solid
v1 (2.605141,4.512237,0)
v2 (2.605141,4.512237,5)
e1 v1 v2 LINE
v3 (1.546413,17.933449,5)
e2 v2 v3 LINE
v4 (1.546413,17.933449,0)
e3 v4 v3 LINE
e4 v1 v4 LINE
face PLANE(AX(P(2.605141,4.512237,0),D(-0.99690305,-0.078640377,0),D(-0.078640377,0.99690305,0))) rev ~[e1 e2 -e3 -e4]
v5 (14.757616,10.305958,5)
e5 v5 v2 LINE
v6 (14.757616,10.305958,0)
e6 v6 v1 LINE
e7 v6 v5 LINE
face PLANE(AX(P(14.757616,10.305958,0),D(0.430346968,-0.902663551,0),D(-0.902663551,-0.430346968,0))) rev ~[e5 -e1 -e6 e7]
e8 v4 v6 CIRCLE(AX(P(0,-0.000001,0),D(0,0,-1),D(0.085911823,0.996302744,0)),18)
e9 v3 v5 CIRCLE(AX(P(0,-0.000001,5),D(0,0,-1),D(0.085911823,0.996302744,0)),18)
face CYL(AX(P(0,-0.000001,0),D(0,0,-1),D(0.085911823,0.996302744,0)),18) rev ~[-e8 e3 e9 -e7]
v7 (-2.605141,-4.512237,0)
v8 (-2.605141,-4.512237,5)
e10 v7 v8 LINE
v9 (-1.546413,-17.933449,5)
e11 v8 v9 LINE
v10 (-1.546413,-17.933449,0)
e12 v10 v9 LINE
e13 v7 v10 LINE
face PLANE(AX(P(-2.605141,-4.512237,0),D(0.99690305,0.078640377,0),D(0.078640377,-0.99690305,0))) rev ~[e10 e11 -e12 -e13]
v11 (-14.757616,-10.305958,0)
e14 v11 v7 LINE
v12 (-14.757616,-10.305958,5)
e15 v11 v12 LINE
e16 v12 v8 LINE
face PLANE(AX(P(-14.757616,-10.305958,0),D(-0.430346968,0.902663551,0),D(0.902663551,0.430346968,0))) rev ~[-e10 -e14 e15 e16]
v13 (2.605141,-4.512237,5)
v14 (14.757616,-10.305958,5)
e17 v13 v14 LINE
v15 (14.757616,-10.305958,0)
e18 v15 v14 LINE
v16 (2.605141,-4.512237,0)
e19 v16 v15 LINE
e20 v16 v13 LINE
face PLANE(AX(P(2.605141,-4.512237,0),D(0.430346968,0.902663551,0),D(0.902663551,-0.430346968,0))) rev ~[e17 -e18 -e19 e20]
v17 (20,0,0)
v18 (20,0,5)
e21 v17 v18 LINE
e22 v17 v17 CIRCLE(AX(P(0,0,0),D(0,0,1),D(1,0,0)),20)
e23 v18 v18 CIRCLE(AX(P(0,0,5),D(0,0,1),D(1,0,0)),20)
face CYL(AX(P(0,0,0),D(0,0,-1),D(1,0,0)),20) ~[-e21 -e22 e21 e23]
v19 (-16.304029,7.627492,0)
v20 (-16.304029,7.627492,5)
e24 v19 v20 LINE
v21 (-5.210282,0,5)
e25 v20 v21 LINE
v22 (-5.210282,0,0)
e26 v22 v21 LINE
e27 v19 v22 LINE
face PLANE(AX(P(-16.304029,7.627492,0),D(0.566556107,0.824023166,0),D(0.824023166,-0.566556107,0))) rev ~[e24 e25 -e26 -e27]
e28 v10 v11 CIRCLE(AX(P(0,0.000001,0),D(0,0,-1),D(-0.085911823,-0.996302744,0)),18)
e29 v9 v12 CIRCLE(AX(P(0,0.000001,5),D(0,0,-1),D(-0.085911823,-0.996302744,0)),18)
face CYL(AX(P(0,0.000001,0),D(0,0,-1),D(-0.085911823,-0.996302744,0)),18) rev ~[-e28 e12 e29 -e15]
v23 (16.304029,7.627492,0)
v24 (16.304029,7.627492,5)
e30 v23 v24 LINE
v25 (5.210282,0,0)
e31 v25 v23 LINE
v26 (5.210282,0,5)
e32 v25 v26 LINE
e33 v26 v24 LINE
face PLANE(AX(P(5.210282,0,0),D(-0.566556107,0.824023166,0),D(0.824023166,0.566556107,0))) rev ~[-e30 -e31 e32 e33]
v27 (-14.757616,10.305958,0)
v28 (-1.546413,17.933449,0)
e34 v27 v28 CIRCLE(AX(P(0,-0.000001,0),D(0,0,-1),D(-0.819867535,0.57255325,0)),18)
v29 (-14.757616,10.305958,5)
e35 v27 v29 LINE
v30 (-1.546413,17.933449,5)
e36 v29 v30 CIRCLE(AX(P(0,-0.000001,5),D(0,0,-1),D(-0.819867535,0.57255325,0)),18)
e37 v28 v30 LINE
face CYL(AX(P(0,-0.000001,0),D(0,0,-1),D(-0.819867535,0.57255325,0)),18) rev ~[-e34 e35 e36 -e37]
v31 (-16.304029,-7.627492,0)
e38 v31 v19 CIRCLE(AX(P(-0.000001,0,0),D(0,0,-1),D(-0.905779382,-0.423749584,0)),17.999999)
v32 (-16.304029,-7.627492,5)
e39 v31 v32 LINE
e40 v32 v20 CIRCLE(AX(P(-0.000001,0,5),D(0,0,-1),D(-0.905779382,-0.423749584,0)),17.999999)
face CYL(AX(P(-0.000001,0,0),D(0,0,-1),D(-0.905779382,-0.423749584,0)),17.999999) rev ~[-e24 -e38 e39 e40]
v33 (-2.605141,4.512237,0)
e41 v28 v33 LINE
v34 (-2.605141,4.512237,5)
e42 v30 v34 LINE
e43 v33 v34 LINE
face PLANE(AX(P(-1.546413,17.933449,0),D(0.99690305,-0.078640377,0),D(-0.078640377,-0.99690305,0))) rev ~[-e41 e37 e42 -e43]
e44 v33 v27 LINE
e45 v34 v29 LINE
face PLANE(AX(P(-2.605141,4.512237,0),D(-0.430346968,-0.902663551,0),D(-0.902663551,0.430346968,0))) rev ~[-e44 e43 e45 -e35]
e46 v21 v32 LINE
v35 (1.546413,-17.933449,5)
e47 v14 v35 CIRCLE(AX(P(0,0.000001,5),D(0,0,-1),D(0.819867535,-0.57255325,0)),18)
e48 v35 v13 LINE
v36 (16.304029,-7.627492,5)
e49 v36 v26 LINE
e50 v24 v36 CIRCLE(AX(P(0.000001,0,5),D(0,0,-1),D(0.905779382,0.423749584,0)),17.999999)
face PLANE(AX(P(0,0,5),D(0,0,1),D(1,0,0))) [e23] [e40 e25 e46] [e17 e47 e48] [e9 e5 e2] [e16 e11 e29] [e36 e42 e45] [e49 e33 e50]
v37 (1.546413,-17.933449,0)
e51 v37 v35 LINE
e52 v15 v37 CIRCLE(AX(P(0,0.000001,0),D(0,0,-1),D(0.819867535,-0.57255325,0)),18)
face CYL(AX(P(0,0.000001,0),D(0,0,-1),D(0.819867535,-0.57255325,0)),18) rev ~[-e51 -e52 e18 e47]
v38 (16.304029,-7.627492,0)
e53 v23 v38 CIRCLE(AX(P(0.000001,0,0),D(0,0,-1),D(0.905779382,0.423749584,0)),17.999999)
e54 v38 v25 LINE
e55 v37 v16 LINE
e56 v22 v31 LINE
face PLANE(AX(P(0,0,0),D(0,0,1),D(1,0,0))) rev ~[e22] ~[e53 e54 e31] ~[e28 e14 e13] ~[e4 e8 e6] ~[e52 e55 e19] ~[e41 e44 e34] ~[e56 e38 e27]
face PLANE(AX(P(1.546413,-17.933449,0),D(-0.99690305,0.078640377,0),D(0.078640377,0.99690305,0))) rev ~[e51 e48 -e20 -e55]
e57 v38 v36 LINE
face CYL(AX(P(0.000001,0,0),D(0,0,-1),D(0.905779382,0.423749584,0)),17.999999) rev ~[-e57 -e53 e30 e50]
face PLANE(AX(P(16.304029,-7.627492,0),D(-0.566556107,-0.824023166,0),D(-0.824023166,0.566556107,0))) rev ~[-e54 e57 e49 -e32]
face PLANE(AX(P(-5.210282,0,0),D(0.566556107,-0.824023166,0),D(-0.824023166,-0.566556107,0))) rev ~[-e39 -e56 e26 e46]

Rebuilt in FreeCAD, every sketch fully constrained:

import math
import FreeCAD as App
import Part
import Sketcher
from FreeCAD import Vector
Q = App.Units.Quantity

doc = App.newDocument("Part")
body = doc.addObject("PartDesign::Body", "Body")

# Sketch on XY plane
sketch1 = body.newObject("Sketcher::SketchObject", "Sketch")
sketch1.AttachmentSupport = (doc.getObject("XY_Plane"), [""])
sketch1.MapMode = "FlatFace"
sketch1.addGeometry(Part.Circle(Vector(0, 0, 0), Vector(0, 0, 1), 20), False)
sketch1.addGeometry(Part.ArcOfCircle(Part.Circle(Vector(0, 0.000001, 0), Vector(0, 0, 1), 18), math.radians(-145.071536), math.radians(-94.92846)), False)
sketch1.addGeometry(Part.LineSegment(Vector(-14.757616, -10.305958, 0), Vector(-2.605141, -4.512237, 0)), False)
sketch1.addGeometry(Part.LineSegment(Vector(-2.605141, -4.512237, 0), Vector(-1.546413, -17.933449, 0)), False)
sketch1.addGeometry(Part.ArcOfCircle(Part.Circle(Vector(-0.000001, 0, 0), Vector(0, 0, 1), 17.999999), math.radians(154.928458), math.radians(205.071542)), False)
sketch1.addGeometry(Part.LineSegment(Vector(-16.304029, 7.627492, 0), Vector(-5.210282, 0, 0)), False)
sketch1.addGeometry(Part.LineSegment(Vector(-5.210282, 0, 0), Vector(-16.304029, -7.627492, 0)), False)
sketch1.addGeometry(Part.ArcOfCircle(Part.Circle(Vector(0, 0.000001, 0), Vector(0, 0, 1), 18), math.radians(-85.07154), math.radians(-34.928464)), False)
sketch1.addGeometry(Part.LineSegment(Vector(1.546413, -17.933449, 0), Vector(2.605141, -4.512237, 0)), False)
sketch1.addGeometry(Part.LineSegment(Vector(2.605141, -4.512237, 0), Vector(14.757616, -10.305958, 0)), False)
sketch1.addGeometry(Part.ArcOfCircle(Part.Circle(Vector(0.000001, 0, 0), Vector(0, 0, 1), 17.999999), math.radians(-25.071542), math.radians(25.071542)), False)
sketch1.addGeometry(Part.LineSegment(Vector(16.304029, -7.627492, 0), Vector(5.210282, 0, 0)), False)
sketch1.addGeometry(Part.LineSegment(Vector(5.210282, 0, 0), Vector(16.304029, 7.627492, 0)), False)
sketch1.addGeometry(Part.LineSegment(Vector(-2.605141, 4.512237, 0), Vector(-14.757616, 10.305958, 0)), False)
sketch1.addGeometry(Part.ArcOfCircle(Part.Circle(Vector(0, -0.000001, 0), Vector(0, 0, 1), 18), math.radians(94.92846), math.radians(145.071536)), False)
sketch1.addGeometry(Part.LineSegment(Vector(-1.546413, 17.933449, 0), Vector(-2.605141, 4.512237, 0)), False)
sketch1.addGeometry(Part.ArcOfCircle(Part.Circle(Vector(0, -0.000001, 0), Vector(0, 0, 1), 18), math.radians(34.928464), math.radians(85.07154)), False)
sketch1.addGeometry(Part.LineSegment(Vector(14.757616, 10.305958, 0), Vector(2.605141, 4.512237, 0)), False)
sketch1.addGeometry(Part.LineSegment(Vector(2.605141, 4.512237, 0), Vector(1.546413, 17.933449, 0)), False)
sketch1.addConstraint(Sketcher.Constraint("Coincident", 1, 1, 2, 1))
sketch1.addConstraint(Sketcher.Constraint("Coincident", 2, 2, 3, 1))
sketch1.addConstraint(Sketcher.Constraint("Coincident", 3, 2, 1, 2))
sketch1.addConstraint(Sketcher.Constraint("Coincident", 4, 1, 5, 1))
sketch1.addConstraint(Sketcher.Constraint("Coincident", 5, 2, 6, 1))
sketch1.addConstraint(Sketcher.Constraint("Coincident", 6, 2, 4, 2))
sketch1.addConstraint(Sketcher.Constraint("Coincident", 7, 1, 8, 1))
sketch1.addConstraint(Sketcher.Constraint("Coincident", 8, 2, 9, 1))
sketch1.addConstraint(Sketcher.Constraint("Coincident", 9, 2, 7, 2))
sketch1.addConstraint(Sketcher.Constraint("Coincident", 10, 1, 11, 1))
sketch1.addConstraint(Sketcher.Constraint("Coincident", 11, 2, 12, 1))
sketch1.addConstraint(Sketcher.Constraint("Coincident", 12, 2, 10, 2))
sketch1.addConstraint(Sketcher.Constraint("Coincident", 13, 2, 14, 2))
sketch1.addConstraint(Sketcher.Constraint("Coincident", 14, 1, 15, 1))
sketch1.addConstraint(Sketcher.Constraint("Coincident", 15, 2, 13, 1))
sketch1.addConstraint(Sketcher.Constraint("Coincident", 16, 1, 17, 1))
sketch1.addConstraint(Sketcher.Constraint("Coincident", 17, 2, 18, 1))
sketch1.addConstraint(Sketcher.Constraint("Coincident", 18, 2, 16, 2))
sketch1.addConstraint(Sketcher.Constraint("Coincident", 0, 3, -1, 1))
sketch1.addConstraint(Sketcher.Constraint("Coincident", 1, 3, -1, 1))
sketch1.addConstraint(Sketcher.Constraint("Coincident", 4, 3, -1, 1))
sketch1.addConstraint(Sketcher.Constraint("Coincident", 7, 3, -1, 1))
sketch1.addConstraint(Sketcher.Constraint("Coincident", 10, 3, -1, 1))
sketch1.addConstraint(Sketcher.Constraint("Coincident", 14, 3, -1, 1))
sketch1.addConstraint(Sketcher.Constraint("Coincident", 16, 3, -1, 1))
sketch1.addConstraint(Sketcher.Constraint("Equal", 1, 4))
sketch1.addConstraint(Sketcher.Constraint("Equal", 4, 7))
sketch1.addConstraint(Sketcher.Constraint("Equal", 7, 10))
sketch1.addConstraint(Sketcher.Constraint("Equal", 10, 14))
sketch1.addConstraint(Sketcher.Constraint("Equal", 14, 16))
sketch1.addConstraint(Sketcher.Constraint("Symmetric", 5, 2, 11, 2, -1, 1))
sketch1.addConstraint(Sketcher.Constraint("Symmetric", 8, 2, 15, 2, -1, 1))
sketch1.addConstraint(Sketcher.Constraint("Symmetric", 2, 2, 17, 2, -1, 1))
sketch1.addConstraint(Sketcher.Constraint("Symmetric", 2, 2, 8, 2, -2))
sketch1.addConstraint(Sketcher.Constraint("PointOnObject", 5, 2, -1))
sketch1.addConstraint(Sketcher.Constraint("Parallel", 5, 11))
sketch1.addConstraint(Sketcher.Constraint("Parallel", 6, 12))
sketch1.addConstraint(Sketcher.Constraint("Parallel", 9, 13))
sketch1.addConstraint(Sketcher.Constraint("Parallel", 8, 15))
sketch1.addConstraint(Sketcher.Constraint("Parallel", 2, 17))
sketch1.addConstraint(Sketcher.Constraint("Parallel", 3, 18))
sketch1.addConstraint(Sketcher.Constraint("Horizontal", 3, 2, 7, 1))
sketch1.addConstraint(Sketcher.Constraint("Horizontal", 1, 1, 9, 2))
sketch1.addConstraint(Sketcher.Constraint("Horizontal", 6, 2, 10, 1))
sketch1.addConstraint(Sketcher.Constraint("Equal", 2, 3))
sketch1.addConstraint(Sketcher.Constraint("Equal", 3, 5))
sketch1.addConstraint(Sketcher.Constraint("Diameter", 0, Q("40 mm")))
sketch1.addConstraint(Sketcher.Constraint("Radius", 1, Q("18 mm")))
sketch1.addConstraint(Sketcher.Constraint("DistanceY", 1, 1, -1, 1, Q("10.305958 mm")))
sketch1.addConstraint(Sketcher.Constraint("DistanceX", 2, 2, -1, 1, Q("2.605141 mm")))
sketch1.addConstraint(Sketcher.Constraint("DistanceY", 3, 2, -1, 1, Q("17.933449 mm")))
sketch1.addConstraint(Sketcher.Constraint("DistanceX", 4, 1, -1, 1, Q("16.304029 mm")))
pad1 = body.newObject("PartDesign::Pad", "Pad")
pad1.Profile = sketch1
pad1.Length = 5

doc.recompute()
